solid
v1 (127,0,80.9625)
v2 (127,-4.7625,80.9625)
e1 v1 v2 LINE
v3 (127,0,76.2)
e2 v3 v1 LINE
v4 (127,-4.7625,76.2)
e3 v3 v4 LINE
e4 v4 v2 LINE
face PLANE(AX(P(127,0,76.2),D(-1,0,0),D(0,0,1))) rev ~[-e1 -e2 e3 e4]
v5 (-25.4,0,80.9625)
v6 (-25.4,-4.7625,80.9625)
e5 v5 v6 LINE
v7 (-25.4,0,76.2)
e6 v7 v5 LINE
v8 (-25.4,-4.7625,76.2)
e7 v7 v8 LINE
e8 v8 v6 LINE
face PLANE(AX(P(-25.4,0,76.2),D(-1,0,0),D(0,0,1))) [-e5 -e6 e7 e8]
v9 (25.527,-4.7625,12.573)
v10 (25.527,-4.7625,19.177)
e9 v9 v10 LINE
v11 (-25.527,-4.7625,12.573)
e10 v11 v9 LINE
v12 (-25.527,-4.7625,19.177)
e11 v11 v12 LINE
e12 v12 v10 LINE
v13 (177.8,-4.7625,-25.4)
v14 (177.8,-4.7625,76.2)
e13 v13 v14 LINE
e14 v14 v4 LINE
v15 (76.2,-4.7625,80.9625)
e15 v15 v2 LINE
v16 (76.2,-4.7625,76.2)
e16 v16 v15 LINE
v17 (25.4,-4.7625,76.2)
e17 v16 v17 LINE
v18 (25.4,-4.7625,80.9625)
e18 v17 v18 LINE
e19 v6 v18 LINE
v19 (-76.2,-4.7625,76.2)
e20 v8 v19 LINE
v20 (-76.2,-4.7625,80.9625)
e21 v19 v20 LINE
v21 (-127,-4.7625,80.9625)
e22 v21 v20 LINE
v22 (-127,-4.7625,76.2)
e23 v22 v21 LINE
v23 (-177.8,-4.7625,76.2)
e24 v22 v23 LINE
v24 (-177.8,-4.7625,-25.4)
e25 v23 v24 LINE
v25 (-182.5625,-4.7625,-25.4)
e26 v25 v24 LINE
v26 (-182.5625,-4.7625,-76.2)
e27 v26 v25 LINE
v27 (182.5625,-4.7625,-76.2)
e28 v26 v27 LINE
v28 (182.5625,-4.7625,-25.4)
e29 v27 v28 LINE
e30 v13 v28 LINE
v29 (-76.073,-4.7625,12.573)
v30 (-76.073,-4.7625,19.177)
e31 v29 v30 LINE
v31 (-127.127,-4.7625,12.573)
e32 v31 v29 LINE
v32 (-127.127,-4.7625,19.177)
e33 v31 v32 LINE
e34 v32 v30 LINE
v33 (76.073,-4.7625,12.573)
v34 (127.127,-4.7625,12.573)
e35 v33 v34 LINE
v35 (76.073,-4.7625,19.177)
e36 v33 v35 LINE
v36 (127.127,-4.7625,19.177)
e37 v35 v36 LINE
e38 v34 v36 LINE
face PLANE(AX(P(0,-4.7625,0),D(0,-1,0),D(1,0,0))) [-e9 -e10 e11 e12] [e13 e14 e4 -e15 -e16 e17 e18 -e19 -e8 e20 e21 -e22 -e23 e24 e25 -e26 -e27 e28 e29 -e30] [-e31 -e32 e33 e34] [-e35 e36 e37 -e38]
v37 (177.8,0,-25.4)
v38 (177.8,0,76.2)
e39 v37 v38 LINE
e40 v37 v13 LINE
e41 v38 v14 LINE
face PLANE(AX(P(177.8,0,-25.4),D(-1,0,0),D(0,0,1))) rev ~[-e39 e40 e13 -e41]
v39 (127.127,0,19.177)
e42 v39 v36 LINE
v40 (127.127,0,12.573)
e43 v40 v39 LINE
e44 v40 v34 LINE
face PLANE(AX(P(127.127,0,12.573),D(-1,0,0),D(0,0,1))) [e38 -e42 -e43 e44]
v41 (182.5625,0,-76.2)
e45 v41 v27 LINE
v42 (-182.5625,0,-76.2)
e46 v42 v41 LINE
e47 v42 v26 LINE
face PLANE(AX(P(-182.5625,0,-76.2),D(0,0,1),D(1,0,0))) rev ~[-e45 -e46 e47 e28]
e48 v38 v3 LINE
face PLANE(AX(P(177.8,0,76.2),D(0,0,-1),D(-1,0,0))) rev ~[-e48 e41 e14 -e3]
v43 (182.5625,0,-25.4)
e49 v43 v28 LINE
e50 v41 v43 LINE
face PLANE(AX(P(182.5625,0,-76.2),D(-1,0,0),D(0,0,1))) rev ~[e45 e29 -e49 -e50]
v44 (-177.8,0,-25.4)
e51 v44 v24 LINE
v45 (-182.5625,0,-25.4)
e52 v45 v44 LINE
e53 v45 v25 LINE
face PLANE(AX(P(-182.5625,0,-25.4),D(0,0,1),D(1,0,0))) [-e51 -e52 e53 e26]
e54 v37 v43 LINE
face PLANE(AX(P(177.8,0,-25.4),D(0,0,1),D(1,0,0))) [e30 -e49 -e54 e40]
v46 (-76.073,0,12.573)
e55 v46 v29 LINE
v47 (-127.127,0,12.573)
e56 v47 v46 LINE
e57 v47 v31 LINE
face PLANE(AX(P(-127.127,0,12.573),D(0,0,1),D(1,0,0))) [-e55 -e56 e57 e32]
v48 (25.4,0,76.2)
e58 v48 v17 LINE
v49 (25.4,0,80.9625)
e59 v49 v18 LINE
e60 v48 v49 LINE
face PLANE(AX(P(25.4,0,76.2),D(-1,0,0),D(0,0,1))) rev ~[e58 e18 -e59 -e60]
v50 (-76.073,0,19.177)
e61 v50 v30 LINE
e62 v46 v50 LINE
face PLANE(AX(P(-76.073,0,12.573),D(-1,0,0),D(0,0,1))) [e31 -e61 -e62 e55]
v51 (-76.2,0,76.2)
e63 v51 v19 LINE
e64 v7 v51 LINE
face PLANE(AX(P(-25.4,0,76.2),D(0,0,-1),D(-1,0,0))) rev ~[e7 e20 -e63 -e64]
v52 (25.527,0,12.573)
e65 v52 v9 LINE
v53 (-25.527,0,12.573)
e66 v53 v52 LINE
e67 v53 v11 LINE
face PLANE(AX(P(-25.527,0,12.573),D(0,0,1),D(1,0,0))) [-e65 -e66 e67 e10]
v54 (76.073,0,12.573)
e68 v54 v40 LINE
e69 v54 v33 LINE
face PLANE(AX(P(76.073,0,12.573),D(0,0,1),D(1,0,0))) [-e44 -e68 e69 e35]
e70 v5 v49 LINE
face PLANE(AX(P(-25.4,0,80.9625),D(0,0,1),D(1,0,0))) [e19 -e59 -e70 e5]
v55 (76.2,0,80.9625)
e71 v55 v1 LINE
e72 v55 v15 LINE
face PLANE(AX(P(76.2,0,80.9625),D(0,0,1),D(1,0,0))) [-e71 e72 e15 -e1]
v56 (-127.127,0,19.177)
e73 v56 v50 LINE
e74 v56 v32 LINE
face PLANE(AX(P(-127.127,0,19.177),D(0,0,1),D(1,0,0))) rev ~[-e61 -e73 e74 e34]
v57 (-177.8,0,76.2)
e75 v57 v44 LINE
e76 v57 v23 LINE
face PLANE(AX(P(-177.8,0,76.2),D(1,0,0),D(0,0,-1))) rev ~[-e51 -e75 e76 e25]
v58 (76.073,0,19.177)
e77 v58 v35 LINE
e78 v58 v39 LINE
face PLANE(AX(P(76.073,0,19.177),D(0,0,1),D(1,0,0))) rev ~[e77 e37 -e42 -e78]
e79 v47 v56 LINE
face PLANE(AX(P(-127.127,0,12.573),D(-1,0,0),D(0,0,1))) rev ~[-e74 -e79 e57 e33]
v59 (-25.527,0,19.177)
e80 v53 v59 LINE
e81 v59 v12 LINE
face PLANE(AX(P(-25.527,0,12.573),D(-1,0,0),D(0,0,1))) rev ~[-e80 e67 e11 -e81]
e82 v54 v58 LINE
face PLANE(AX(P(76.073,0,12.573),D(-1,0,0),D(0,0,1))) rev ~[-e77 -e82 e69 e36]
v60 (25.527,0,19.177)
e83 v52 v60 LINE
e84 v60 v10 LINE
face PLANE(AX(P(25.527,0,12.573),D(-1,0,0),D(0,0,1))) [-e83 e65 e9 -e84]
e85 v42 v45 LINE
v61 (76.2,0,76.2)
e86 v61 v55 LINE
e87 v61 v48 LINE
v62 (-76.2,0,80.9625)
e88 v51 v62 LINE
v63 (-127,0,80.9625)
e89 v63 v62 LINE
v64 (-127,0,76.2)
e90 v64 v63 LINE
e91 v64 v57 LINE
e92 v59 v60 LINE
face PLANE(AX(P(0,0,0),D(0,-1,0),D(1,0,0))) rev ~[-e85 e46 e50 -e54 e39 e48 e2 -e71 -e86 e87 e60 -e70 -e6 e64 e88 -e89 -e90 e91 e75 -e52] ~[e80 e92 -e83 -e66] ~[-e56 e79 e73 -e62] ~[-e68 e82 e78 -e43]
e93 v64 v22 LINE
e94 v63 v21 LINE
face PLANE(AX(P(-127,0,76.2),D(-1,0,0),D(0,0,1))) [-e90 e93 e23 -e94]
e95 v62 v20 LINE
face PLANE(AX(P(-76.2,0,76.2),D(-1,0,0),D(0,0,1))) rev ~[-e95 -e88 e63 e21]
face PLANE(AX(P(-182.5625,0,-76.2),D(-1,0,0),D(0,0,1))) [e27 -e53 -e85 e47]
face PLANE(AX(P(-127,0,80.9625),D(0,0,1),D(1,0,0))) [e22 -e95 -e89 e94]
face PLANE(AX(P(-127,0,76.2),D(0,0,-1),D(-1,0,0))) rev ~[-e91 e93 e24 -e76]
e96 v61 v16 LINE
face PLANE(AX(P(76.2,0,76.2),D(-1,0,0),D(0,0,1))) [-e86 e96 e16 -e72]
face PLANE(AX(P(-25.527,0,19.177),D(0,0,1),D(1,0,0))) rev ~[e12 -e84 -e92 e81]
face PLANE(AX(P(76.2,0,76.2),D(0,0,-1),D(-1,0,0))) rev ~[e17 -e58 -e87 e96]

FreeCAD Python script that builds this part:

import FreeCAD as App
import Part
import Sketcher
from FreeCAD import Vector
Q = App.Units.Quantity

doc = App.newDocument("Part")
body = doc.addObject("PartDesign::Body", "Body")

# Sketch on XZ plane
sketch1 = body.newObject("Sketcher::SketchObject", "Sketch")
sketch1.AttachmentSupport = (doc.getObject("XZ_Plane"), [""])
sketch1.MapMode = "FlatFace"
sketch1.addGeometry([
    Part.LineSegment(Vector(-177.8, 76.2, 0), Vector(-177.8, -25.4, 0)),  # 0
    Part.LineSegment(Vector(-177.8, -25.4, 0), Vector(-182.5625, -25.4, 0)),  # 1
    Part.LineSegment(Vector(-182.5625, -25.4, 0), Vector(-182.5625, -76.2, 0)),  # 2
    Part.LineSegment(Vector(-182.5625, -76.2, 0), Vector(182.5625, -76.2, 0)),  # 3
    Part.LineSegment(Vector(182.5625, -76.2, 0), Vector(182.5625, -25.4, 0)),  # 4
    Part.LineSegment(Vector(182.5625, -25.4, 0), Vector(177.8, -25.4, 0)),  # 5
    Part.LineSegment(Vector(177.8, -25.4, 0), Vector(177.8, 76.2, 0)),  # 6
    Part.LineSegment(Vector(177.8, 76.2, 0), Vector(127, 76.2, 0)),  # 7
    Part.LineSegment(Vector(127, 76.2, 0), Vector(127, 80.9625, 0)),  # 8
    Part.LineSegment(Vector(127, 80.9625, 0), Vector(76.2, 80.9625, 0)),  # 9
    Part.LineSegment(Vector(76.2, 80.9625, 0), Vector(76.2, 76.2, 0)),  # 10
    Part.LineSegment(Vector(76.2, 76.2, 0), Vector(25.4, 76.2, 0)),  # 11
    Part.LineSegment(Vector(25.4, 76.2, 0), Vector(25.4, 80.9625, 0)),  # 12
    Part.LineSegment(Vector(25.4, 80.9625, 0), Vector(-25.4, 80.9625, 0)),  # 13
    Part.LineSegment(Vector(-25.4, 80.9625, 0), Vector(-25.4, 76.2, 0)),  # 14
    Part.LineSegment(Vector(-25.4, 76.2, 0), Vector(-76.2, 76.2, 0)),  # 15
    Part.LineSegment(Vector(-76.2, 76.2, 0), Vector(-76.2, 80.9625, 0)),  # 16
    Part.LineSegment(Vector(-76.2, 80.9625, 0), Vector(-127, 80.9625, 0)),  # 17
    Part.LineSegment(Vector(-127, 80.9625, 0), Vector(-127, 76.2, 0)),  # 18
    Part.LineSegment(Vector(-127, 76.2, 0), Vector(-177.8, 76.2, 0)),  # 19
    Part.LineSegment(Vector(-76.073, 12.573, 0), Vector(-127.127, 12.573, 0)),  # 20
    Part.LineSegment(Vector(-127.127, 12.573, 0), Vector(-127.127, 19.177, 0)),  # 21
    Part.LineSegment(Vector(-127.127, 19.177, 0), Vector(-76.073, 19.177, 0)),  # 22
    Part.LineSegment(Vector(-76.073, 19.177, 0), Vector(-76.073, 12.573, 0)),  # 23
    Part.LineSegment(Vector(25.527, 12.573, 0), Vector(-25.527, 12.573, 0)),  # 24
    Part.LineSegment(Vector(-25.527, 12.573, 0), Vector(-25.527, 19.177, 0)),  # 25
    Part.LineSegment(Vector(-25.527, 19.177, 0), Vector(25.527, 19.177, 0)),  # 26
    Part.LineSegment(Vector(25.527, 19.177, 0), Vector(25.527, 12.573, 0)),  # 27
    Part.LineSegment(Vector(127.127, 12.573, 0), Vector(76.073, 12.573, 0)),  # 28
    Part.LineSegment(Vector(76.073, 12.573, 0), Vector(76.073, 19.177, 0)),  # 29
    Part.LineSegment(Vector(76.073, 19.177, 0), Vector(127.127, 19.177, 0)),  # 30
    Part.LineSegment(Vector(127.127, 19.177, 0), Vector(127.127, 12.573, 0)),  # 31
], False)
sketch1.addConstraint([
    Sketcher.Constraint("Coincident", 0, 2, 1, 1),
    Sketcher.Constraint("Coincident", 1, 2, 2, 1),
    Sketcher.Constraint("Coincident", 2, 2, 3, 1),
    Sketcher.Constraint("Coincident", 3, 2, 4, 1),
    Sketcher.Constraint("Coincident", 4, 2, 5, 1),
    Sketcher.Constraint("Coincident", 5, 2, 6, 1),
    Sketcher.Constraint("Coincident", 6, 2, 7, 1),
    Sketcher.Constraint("Coincident", 7, 2, 8, 1),
    Sketcher.Constraint("Coincident", 8, 2, 9, 1),
    Sketcher.Constraint("Coincident", 9, 2, 10, 1),
    Sketcher.Constraint("Coincident", 10, 2, 11, 1),
    Sketcher.Constraint("Coincident", 11, 2, 12, 1),
    Sketcher.Constraint("Coincident", 12, 2, 13, 1),
    Sketcher.Constraint("Coincident", 13, 2, 14, 1),
    Sketcher.Constraint("Coincident", 14, 2, 15, 1),
    Sketcher.Constraint("Coincident", 15, 2, 16, 1),
    Sketcher.Constraint("Coincident", 16, 2, 17, 1),
    Sketcher.Constraint("Coincident", 17, 2, 18, 1),
    Sketcher.Constraint("Coincident", 18, 2, 19, 1),
    Sketcher.Constraint("Coincident", 19, 2, 0, 1),
    Sketcher.Constraint("Coincident", 20, 2, 21, 1),
    Sketcher.Constraint("Coincident", 21, 2, 22, 1),
    Sketcher.Constraint("Coincident", 22, 2, 23, 1),
    Sketcher.Constraint("Coincident", 23, 2, 20, 1),
    Sketcher.Constraint("Coincident", 24, 2, 25, 1),
    Sketcher.Constraint("Coincident", 25, 2, 26, 1),
    Sketcher.Constraint("Coincident", 26, 2, 27, 1),
    Sketcher.Constraint("Coincident", 27, 2, 24, 1),
    Sketcher.Constraint("Coincident", 28, 2, 29, 1),
    Sketcher.Constraint("Coincident", 29, 2, 30, 1),
    Sketcher.Constraint("Coincident", 30, 2, 31, 1),
    Sketcher.Constraint("Coincident", 31, 2, 28, 1),
    Sketcher.Constraint("Vertical", 0),
    Sketcher.Constraint("Horizontal", 1),
    Sketcher.Constraint("Vertical", 2),
    Sketcher.Constraint("Horizontal", 3),
    Sketcher.Constraint("Vertical", 4),
    Sketcher.Constraint("Horizontal", 5),
    Sketcher.Constraint("Vertical", 6),
    Sketcher.Constraint("Horizontal", 7),
    Sketcher.Constraint("Vertical", 8),
    Sketcher.Constraint("Horizontal", 9),
    Sketcher.Constraint("Vertical", 10),
    Sketcher.Constraint("Horizontal", 11),
    Sketcher.Constraint("Vertical", 12),
    Sketcher.Constraint("Horizontal", 13),
    Sketcher.Constraint("Vertical", 14),
    Sketcher.Constraint("Horizontal", 15),
    Sketcher.Constraint("Vertical", 16),
    Sketcher.Constraint("Horizontal", 17),
    Sketcher.Constraint("Vertical", 18),
    Sketcher.Constraint("Horizontal", 19),
    Sketcher.Constraint("Horizontal", 20),
    Sketcher.Constraint("Vertical", 21),
    Sketcher.Constraint("Horizontal", 22),
    Sketcher.Constraint("Vertical", 23),
    Sketcher.Constraint("Horizontal", 24),
    Sketcher.Constraint("Vertical", 25),
    Sketcher.Constraint("Horizontal", 26),
    Sketcher.Constraint("Vertical", 27),
    Sketcher.Constraint("Horizontal", 28),
    Sketcher.Constraint("Vertical", 29),
    Sketcher.Constraint("Horizontal", 30),
    Sketcher.Constraint("Vertical", 31),
    Sketcher.Constraint("Symmetric", 1, 2, 4, 2, -2),
    Sketcher.Constraint("Symmetric", 11, 2, 14, 2, -2),
    Sketcher.Constraint("Symmetric", 9, 2, 16, 2, -2),
    Sketcher.Constraint("Symmetric", 7, 2, 18, 2, -2),
    Sketcher.Constraint("Symmetric", 23, 2, 28, 2, -2),
    Sketcher.Constraint("Symmetric", 21, 2, 30, 2, -2),
    Sketcher.Constraint("Horizontal", 7, 2, 10, 2),
    Sketcher.Constraint("Horizontal", 9, 2, 12, 2),
    Sketcher.Constraint("Horizontal", 23, 2, 24, 2),
    Sketcher.Constraint("Horizontal", 22, 2, 25, 2),
    Sketcher.Constraint("Equal", 1, 5),
    Sketcher.Constraint("Equal", 7, 9),
    Sketcher.Constraint("Equal", 9, 11),
    Sketcher.Constraint("Equal", 11, 13),
    Sketcher.Constraint("Equal", 22, 24),
    Sketcher.Constraint("Equal", 19, 2),
    Sketcher.Constraint("Equal", 5, 8),
    Sketcher.Constraint("DistanceX", 7, 2, 7, 1, Q("2 in")),
    Sketcher.Constraint("DistanceY", 0, 2, 0, 1, Q("4 in")),
    Sketcher.Constraint("DistanceY", 0, 2, -1, 1, Q("1 in")),
    Sketcher.Constraint("DistanceX", 20, 2, 20, 1, Q("2.01 in")),
    Sketcher.Constraint("DistanceY", 21, 1, 21, 2, Q("0.26 in")),
    Sketcher.Constraint("DistanceX", 1, 2, 1, 1, Q("0.1875 in")),
    Sketcher.Constraint("DistanceX", 23, 2, 24, 2, Q("1.99 in")),
    Sketcher.Constraint("DistanceX", 27, 2, 28, 2, Q("1.99 in")),
    Sketcher.Constraint("DistanceY", -1, 1, 20, 2, Q("0.495 in")),
])
pad1 = body.newObject("PartDesign::Pad", "Pad")
pad1.Profile = sketch1
pad1.Length = Q("0.1875 in")

doc.recompute()
